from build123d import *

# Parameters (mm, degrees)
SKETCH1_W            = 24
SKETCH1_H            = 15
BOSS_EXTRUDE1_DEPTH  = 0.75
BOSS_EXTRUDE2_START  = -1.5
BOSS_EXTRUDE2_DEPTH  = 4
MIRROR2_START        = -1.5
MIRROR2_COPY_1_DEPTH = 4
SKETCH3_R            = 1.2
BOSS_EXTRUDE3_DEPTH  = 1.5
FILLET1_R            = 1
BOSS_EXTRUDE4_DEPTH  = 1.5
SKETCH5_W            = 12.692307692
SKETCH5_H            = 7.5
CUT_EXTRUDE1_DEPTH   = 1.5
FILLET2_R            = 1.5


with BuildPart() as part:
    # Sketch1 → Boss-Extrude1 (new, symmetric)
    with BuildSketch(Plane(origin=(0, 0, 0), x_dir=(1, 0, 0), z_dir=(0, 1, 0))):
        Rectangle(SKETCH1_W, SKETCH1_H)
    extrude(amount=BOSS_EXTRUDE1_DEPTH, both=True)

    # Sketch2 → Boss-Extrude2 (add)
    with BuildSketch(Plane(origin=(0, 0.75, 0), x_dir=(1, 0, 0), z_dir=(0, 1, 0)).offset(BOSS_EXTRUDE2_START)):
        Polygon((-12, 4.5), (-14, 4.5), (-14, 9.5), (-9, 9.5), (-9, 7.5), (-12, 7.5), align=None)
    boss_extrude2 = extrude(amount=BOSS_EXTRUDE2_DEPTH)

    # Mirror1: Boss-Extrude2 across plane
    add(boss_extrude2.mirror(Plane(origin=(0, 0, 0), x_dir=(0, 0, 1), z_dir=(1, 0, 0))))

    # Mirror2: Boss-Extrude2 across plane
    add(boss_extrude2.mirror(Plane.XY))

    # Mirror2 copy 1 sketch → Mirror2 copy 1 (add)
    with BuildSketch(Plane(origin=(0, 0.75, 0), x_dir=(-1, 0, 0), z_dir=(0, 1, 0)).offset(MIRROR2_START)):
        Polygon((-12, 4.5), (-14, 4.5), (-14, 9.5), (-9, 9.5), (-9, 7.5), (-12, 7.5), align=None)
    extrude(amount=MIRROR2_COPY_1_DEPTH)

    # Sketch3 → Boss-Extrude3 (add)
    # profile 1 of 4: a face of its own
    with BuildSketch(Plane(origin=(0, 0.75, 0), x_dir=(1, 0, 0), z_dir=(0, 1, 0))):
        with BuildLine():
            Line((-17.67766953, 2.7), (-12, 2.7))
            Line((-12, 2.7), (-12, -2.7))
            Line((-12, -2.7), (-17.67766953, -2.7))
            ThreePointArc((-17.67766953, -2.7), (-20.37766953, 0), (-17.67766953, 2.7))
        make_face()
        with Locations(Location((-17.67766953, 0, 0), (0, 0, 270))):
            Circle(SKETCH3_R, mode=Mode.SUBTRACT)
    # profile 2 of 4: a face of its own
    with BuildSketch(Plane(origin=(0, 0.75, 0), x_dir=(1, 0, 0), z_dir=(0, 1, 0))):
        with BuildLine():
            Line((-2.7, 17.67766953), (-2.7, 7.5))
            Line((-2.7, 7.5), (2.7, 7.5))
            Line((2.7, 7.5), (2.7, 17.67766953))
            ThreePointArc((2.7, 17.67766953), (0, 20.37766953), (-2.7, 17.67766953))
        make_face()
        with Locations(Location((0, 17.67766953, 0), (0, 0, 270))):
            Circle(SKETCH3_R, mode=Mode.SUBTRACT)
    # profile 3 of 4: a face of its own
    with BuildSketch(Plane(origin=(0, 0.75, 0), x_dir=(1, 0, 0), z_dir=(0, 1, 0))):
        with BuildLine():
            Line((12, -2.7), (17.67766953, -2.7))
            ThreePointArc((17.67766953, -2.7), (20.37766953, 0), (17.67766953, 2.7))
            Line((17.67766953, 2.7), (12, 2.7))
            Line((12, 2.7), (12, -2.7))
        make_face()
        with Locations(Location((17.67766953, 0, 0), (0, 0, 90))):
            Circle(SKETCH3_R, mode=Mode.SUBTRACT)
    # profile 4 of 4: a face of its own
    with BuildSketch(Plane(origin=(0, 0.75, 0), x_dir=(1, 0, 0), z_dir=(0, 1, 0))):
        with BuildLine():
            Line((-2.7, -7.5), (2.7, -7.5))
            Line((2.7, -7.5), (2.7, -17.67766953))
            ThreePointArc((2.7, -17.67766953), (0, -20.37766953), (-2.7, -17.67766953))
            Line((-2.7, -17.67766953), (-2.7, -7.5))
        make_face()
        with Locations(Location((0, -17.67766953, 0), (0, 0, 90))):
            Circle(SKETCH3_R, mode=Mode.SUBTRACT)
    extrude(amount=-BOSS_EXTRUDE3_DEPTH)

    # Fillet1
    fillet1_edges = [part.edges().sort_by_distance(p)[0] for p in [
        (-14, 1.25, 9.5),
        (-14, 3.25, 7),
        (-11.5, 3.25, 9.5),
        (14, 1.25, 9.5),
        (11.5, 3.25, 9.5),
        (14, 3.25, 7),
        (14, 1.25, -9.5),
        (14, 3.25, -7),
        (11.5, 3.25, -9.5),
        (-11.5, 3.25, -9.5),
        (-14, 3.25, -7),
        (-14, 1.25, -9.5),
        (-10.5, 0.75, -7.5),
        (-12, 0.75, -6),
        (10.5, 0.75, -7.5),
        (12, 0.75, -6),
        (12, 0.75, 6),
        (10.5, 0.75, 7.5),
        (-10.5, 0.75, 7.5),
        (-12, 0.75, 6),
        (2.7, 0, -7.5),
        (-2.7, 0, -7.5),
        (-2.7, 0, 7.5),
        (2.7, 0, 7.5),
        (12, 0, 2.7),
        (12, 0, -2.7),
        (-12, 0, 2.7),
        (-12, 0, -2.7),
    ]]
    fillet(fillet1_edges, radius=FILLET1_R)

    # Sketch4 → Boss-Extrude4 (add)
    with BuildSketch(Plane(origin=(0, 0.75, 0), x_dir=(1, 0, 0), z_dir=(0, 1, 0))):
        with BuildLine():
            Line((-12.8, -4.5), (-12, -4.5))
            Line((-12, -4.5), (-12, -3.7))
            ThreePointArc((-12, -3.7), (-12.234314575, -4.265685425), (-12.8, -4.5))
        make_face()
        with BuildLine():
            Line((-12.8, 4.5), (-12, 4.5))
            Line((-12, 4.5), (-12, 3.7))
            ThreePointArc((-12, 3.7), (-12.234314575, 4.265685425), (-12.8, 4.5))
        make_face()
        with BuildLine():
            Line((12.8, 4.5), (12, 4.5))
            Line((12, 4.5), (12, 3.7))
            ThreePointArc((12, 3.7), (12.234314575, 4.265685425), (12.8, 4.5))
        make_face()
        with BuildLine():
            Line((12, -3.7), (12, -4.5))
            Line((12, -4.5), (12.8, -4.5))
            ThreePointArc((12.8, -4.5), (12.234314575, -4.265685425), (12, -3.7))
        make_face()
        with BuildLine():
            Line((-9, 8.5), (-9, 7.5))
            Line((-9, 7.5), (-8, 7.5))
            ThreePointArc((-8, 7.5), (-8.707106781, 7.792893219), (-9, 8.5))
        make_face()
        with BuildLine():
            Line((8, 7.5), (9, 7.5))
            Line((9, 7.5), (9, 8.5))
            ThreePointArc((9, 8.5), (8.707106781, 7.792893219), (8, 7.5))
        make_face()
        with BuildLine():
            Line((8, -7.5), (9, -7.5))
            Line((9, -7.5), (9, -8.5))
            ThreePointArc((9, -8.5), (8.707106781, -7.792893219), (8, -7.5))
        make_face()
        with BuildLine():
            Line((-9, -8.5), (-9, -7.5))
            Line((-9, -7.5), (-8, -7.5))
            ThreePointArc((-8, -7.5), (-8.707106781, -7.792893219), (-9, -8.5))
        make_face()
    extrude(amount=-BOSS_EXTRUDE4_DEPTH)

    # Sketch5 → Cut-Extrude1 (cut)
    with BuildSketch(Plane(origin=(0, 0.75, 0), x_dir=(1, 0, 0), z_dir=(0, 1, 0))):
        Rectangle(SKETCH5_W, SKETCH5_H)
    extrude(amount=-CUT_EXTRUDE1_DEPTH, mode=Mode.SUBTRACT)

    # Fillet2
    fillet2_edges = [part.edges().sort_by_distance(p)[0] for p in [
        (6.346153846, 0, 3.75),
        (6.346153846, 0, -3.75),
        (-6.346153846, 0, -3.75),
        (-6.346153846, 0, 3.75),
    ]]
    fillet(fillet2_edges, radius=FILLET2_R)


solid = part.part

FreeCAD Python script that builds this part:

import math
import FreeCAD as App
import Part
import Sketcher
from FreeCAD import Vector
Q = App.Units.Quantity


def edges_at(feature, points):
    """Names of the edges that pass closest to the given points."""
    edges = feature.Shape.Edges
    near = lambda p: min(range(len(edges)), key=lambda i: edges[i].distToShape(Part.Vertex(*p))[0])
    return sorted({f"Edge{near(p) + 1}" for p in points})


def add_polygon(sketch, points):
    """Adds a closed chain of lines whose ends are joined by coincident constraints."""
    first, n = sketch.GeometryCount, len(points)
    for a, b in zip(points, points[1:] + points[:1]):
        sketch.addGeometry(Part.LineSegment(App.Vector(*a, 0), App.Vector(*b, 0)), False)
    for i in range(n):
        sketch.addConstraint(Sketcher.Constraint("Coincident", first + i, 2, first + (i + 1) % n, 1))

doc = App.newDocument("Part")
body = doc.addObject("PartDesign::Body", "Body")

sketch1 = body.newObject("Sketcher::SketchObject", "Sketch")
sketch1.AttachmentSupport = (doc.getObject("XZ_Plane"), [""])
sketch1.MapMode = "FlatFace"
add_polygon(sketch1, [(-12, -8), (-12, 8), (12, 8), (12, -8)])
sketch1.addConstraint(Sketcher.Constraint("Vertical", 0))
sketch1.addConstraint(Sketcher.Constraint("Horizontal", 1))
sketch1.addConstraint(Sketcher.Constraint("Vertical", 2))
sketch1.addConstraint(Sketcher.Constraint("Horizontal", 3))
sketch1.addConstraint(Sketcher.Constraint("Symmetric", 0, 2, 2, 2, -1, 1))
sketch1.addConstraint(Sketcher.Constraint("DistanceX", 1, 1, 1, 2, Q("24 mm")))
sketch1.addConstraint(Sketcher.Constraint("DistanceY", 0, 1, 0, 2, Q("15 mm")))
pad1 = body.newObject("PartDesign::Pad", "Pad")
pad1.Profile = sketch1
pad1.Length = 1.5
pad1.Midplane = True

sketch2 = body.newObject("Sketcher::SketchObject", "Sketch001")
sketch2.AttachmentSupport = (doc.getObject("XZ_Plane"), [""])
sketch2.MapMode = "FlatFace"
sketch2.AttachmentOffset = App.Placement(Vector(0, 0, 0.75), App.Rotation())
add_polygon(sketch2, [(-14, -4.5), (-12, -4.5), (-12, -7.5), (-9, -7.5), (-9, -9.5), (-14, -9.5)])
sketch2.addConstraint(Sketcher.Constraint("Horizontal", 0))
sketch2.addConstraint(Sketcher.Constraint("Vertical", 1))
sketch2.addConstraint(Sketcher.Constraint("Horizontal", 2))
sketch2.addConstraint(Sketcher.Constraint("Vertical", 3))
sketch2.addConstraint(Sketcher.Constraint("Horizontal", 4))
sketch2.addConstraint(Sketcher.Constraint("Vertical", 5))
sketch2.addConstraint(Sketcher.Constraint("Equal", 2, 1))
sketch2.addConstraint(Sketcher.Constraint("Equal", 0, 3))
sketch2.addConstraint(Sketcher.Constraint("DistanceX", 0, 1, 0, 2, Q("2 mm")))
sketch2.addConstraint(Sketcher.Constraint("DistanceX", 2, 1, 2, 2, Q("3 mm")))
sketch2.addConstraint(Sketcher.Constraint("DistanceX", 0, 2, -1, 1, Q("12 mm")))
sketch2.addConstraint(Sketcher.Constraint("DistanceY", 0, 2, -1, 1, Q("4.5 mm")))
pad2 = body.newObject("PartDesign::Pad", "Pad001")
pad2.Profile = sketch2
pad2.Length = 4
pad2.Reversed = True
doc.recompute()

mirrored = body.newObject("PartDesign::Mirrored", "Mirrored")
mirrored.Originals = [pad2]
mirrored.MirrorPlane = (doc.getObject("YZ_Plane"), [""])
body.Tip = mirrored
doc.recompute()

mirrored2 = body.newObject("PartDesign::Mirrored", "Mirrored001")
mirrored2.Originals = [pad2]
mirrored2.MirrorPlane = (doc.getObject("XY_Plane"), [""])
body.Tip = mirrored2

sketch3 = body.newObject("Sketcher::SketchObject", "Sketch002")
sketch3.AttachmentSupport = (doc.getObject("XZ_Plane"), [""])
sketch3.MapMode = "FlatFace"
sketch3.AttachmentOffset = App.Placement(Vector(0, 0, 0.75), App.Rotation())
add_polygon(sketch3, [(14, 4.5), (12, 4.5), (12, 7.5), (9, 7.5), (9, 9.5), (14, 9.5)])
sketch3.addConstraint(Sketcher.Constraint("Horizontal", 0))
sketch3.addConstraint(Sketcher.Constraint("Vertical", 1))
sketch3.addConstraint(Sketcher.Constraint("Horizontal", 2))
sketch3.addConstraint(Sketcher.Constraint("Vertical", 3))
sketch3.addConstraint(Sketcher.Constraint("Horizontal", 4))
sketch3.addConstraint(Sketcher.Constraint("Vertical", 5))
sketch3.addConstraint(Sketcher.Constraint("Equal", 2, 1))
sketch3.addConstraint(Sketcher.Constraint("Equal", 0, 3))
sketch3.addConstraint(Sketcher.Constraint("DistanceX", 0, 2, 0, 1, Q("2 mm")))
sketch3.addConstraint(Sketcher.Constraint("DistanceX", 2, 2, 2, 1, Q("3 mm")))
sketch3.addConstraint(Sketcher.Constraint("DistanceX", -1, 1, 0, 2, Q("12 mm")))
sketch3.addConstraint(Sketcher.Constraint("DistanceY", -1, 1, 0, 2, Q("4.5 mm")))
pad3 = body.newObject("PartDesign::Pad", "Pad002")
pad3.Profile = sketch3
pad3.Length = 4
pad3.Reversed = True

sketch4 = body.newObject("Sketcher::SketchObject", "Sketch003")
sketch4.AttachmentSupport = (doc.getObject("XZ_Plane"), [""])
sketch4.MapMode = "FlatFace"
sketch4.AttachmentOffset = App.Placement(Vector(0, 0, -0.75), App.Rotation())
sketch4.addGeometry(Part.LineSegment(Vector(-12, -2.7, 0), Vector(-17.7, -2.7, 0)), False)
sketch4.addGeometry(Part.ArcOfCircle(Part.Circle(Vector(-17.7, 0, 0), Vector(0, 0, 1), 2.7), math.radians(90), math.radians(270)), False)
sketch4.addGeometry(Part.LineSegment(Vector(-17.7, 2.7, 0), Vector(-12, 2.7, 0)), False)
sketch4.addGeometry(Part.LineSegment(Vector(-12, 2.7, 0), Vector(-12, -2.7, 0)), False)
sketch4.addGeometry(Part.Circle(Vector(-17.7, 0, 0), Vector(0, 0, 1), 1.2), False)
sketch4.addGeometry(Part.LineSegment(Vector(-2.7, -17.7, 0), Vector(-2.7, -7.5, 0)), False)
sketch4.addGeometry(Part.LineSegment(Vector(-2.7, -7.5, 0), Vector(2.7, -7.5, 0)), False)
sketch4.addGeometry(Part.LineSegment(Vector(2.7, -7.5, 0), Vector(2.7, -17.7, 0)), False)
sketch4.addGeometry(Part.ArcOfCircle(Part.Circle(Vector(0, -17.7, 0), Vector(0, 0, 1), 2.7), math.radians(180), math.radians(360)), False)
sketch4.addGeometry(Part.Circle(Vector(0, -17.7, 0), Vector(0, 0, 1), 1.2), False)
sketch4.addGeometry(Part.LineSegment(Vector(12, 2.7, 0), Vector(17.7, 2.7, 0)), False)
sketch4.addGeometry(Part.ArcOfCircle(Part.Circle(Vector(17.7, 0, 0), Vector(0, 0, 1), 2.7), math.radians(-90), math.radians(90)), False)
sketch4.addGeometry(Part.LineSegment(Vector(17.7, -2.7, 0), Vector(12, -2.7, 0)), False)
sketch4.addGeometry(Part.LineSegment(Vector(12, -2.7, 0), Vector(12, 2.7, 0)), False)
sketch4.addGeometry(Part.Circle(Vector(17.7, 0, 0), Vector(0, 0, 1), 1.2), False)
sketch4.addGeometry(Part.LineSegment(Vector(2.7, 7.5, 0), Vector(-2.7, 7.5, 0)), False)
sketch4.addGeometry(Part.LineSegment(Vector(-2.7, 7.5, 0), Vector(-2.7, 17.7, 0)), False)
sketch4.addGeometry(Part.ArcOfCircle(Part.Circle(Vector(0, 17.7, 0), Vector(0, 0, 1), 2.7), math.radians(0), math.radians(180)), False)
sketch4.addGeometry(Part.LineSegment(Vector(2.7, 17.7, 0), Vector(2.7, 7.5, 0)), False)
sketch4.addGeometry(Part.Circle(Vector(0, 17.7, 0), Vector(0, 0, 1), 1.2), False)
sketch4.addConstraint(Sketcher.Constraint("Tangent", 0, 2, 1, 2))
sketch4.addConstraint(Sketcher.Constraint("Tangent", 1, 1, 2, 1))
sketch4.addConstraint(Sketcher.Constraint("Coincident", 2, 2, 3, 1))
sketch4.addConstraint(Sketcher.Constraint("Coincident", 3, 2, 0, 1))
sketch4.addConstraint(Sketcher.Constraint("Coincident", 5, 2, 6, 1))
sketch4.addConstraint(Sketcher.Constraint("Coincident", 6, 2, 7, 1))
sketch4.addConstraint(Sketcher.Constraint("Tangent", 7, 2, 8, 2))
sketch4.addConstraint(Sketcher.Constraint("Tangent", 8, 1, 5, 1))
sketch4.addConstraint(Sketcher.Constraint("Tangent", 10, 2, 11, 2))
sketch4.addConstraint(Sketcher.Constraint("Tangent", 11, 1, 12, 1))
sketch4.addConstraint(Sketcher.Constraint("Coincident", 12, 2, 13, 1))
sketch4.addConstraint(Sketcher.Constraint("Coincident", 13, 2, 10, 1))
sketch4.addConstraint(Sketcher.Constraint("Coincident", 15, 2, 16, 1))
sketch4.addConstraint(Sketcher.Constraint("Tangent", 16, 2, 17, 2))
sketch4.addConstraint(Sketcher.Constraint("Tangent", 17, 1, 18, 1))
sketch4.addConstraint(Sketcher.Constraint("Coincident", 18, 2, 15, 1))
sketch4.addConstraint(Sketcher.Constraint("Horizontal", 0))
sketch4.addConstraint(Sketcher.Constraint("Horizontal", 2))
sketch4.addConstraint(Sketcher.Constraint("Vertical", 3))
sketch4.addConstraint(Sketcher.Constraint("Vertical", 5))
sketch4.addConstraint(Sketcher.Constraint("Horizontal", 6))
sketch4.addConstraint(Sketcher.Constraint("Vertical", 7))
sketch4.addConstraint(Sketcher.Constraint("Horizontal", 10))
sketch4.addConstraint(Sketcher.Constraint("Horizontal", 12))
sketch4.addConstraint(Sketcher.Constraint("Vertical", 13))
sketch4.addConstraint(Sketcher.Constraint("Horizontal", 15))
sketch4.addConstraint(Sketcher.Constraint("Vertical", 16))
sketch4.addConstraint(Sketcher.Constraint("Vertical", 18))
sketch4.addConstraint(Sketcher.Constraint("Coincident", 4, 3, 1, 3))
sketch4.addConstraint(Sketcher.Constraint("Coincident", 9, 3, 8, 3))
sketch4.addConstraint(Sketcher.Constraint("Coincident", 14, 3, 11, 3))
sketch4.addConstraint(Sketcher.Constraint("Coincident", 19, 3, 17, 3))
sketch4.addConstraint(Sketcher.Constraint("Equal", 1, 8))
sketch4.addConstraint(Sketcher.Constraint("Equal", 4, 9))
sketch4.addConstraint(Sketcher.Constraint("Equal", 8, 11))
sketch4.addConstraint(Sketcher.Constraint("Equal", 9, 14))
sketch4.addConstraint(Sketcher.Constraint("Equal", 11, 17))
sketch4.addConstraint(Sketcher.Constraint("Equal", 14, 19))
sketch4.addConstraint(Sketcher.Constraint("Symmetric", 1, 3, 11, 3, -1, 1))
sketch4.addConstraint(Sketcher.Constraint("Symmetric", 8, 3, 17, 3, -1, 1))
sketch4.addConstraint(Sketcher.Constraint("Symmetric", 3, 2, 12, 2, -2))
sketch4.addConstraint(Sketcher.Constraint("Symmetric", 5, 2, 15, 2, -1))
sketch4.addConstraint(Sketcher.Constraint("Diameter", 4, Q("2.4 mm")))
sketch4.addConstraint(Sketcher.Constraint("Radius", 1, Q("2.7 mm")))
sketch4.addConstraint(Sketcher.Constraint("DistanceX", 2, 2, -1, 1, Q("12 mm")))
sketch4.addConstraint(Sketcher.Constraint("DistanceY", 5, 2, 15, 2, Q("15 mm")))
sketch4.addConstraint(Sketcher.Constraint("DistanceX", 0, 2, 0, 1, Q("5.67767 mm")))
sketch4.addConstraint(Sketcher.Constraint("DistanceY", 5, 1, 5, 2, Q("10.17767 mm")))
pad4 = body.newObject("PartDesign::Pad", "Pad003")
pad4.Profile = sketch4
pad4.Length = 1.5
doc.recompute()

fillet = body.newObject("PartDesign::Fillet", "Fillet")
fillet.Base = (pad4, edges_at(pad4, [
    (-14, 1.25, 9.5),
    (-14, 3.25, 7),
    (-11.5, 3.25, 9.5),
    (14, 1.25, 9.5),
    (11.5, 3.25, 9.5),
    (14, 3.25, 7),
    (14, 1.25, -9.5),
    (14, 3.25, -7),
    (11.5, 3.25, -9.5),
    (-11.5, 3.25, -9.5),
    (-14, 3.25, -7),
    (-14, 1.25, -9.5),
    (-10.5, 0.75, -7.5),
    (-12, 0.75, -6),
    (10.5, 0.75, -7.5),
    (12, 0.75, -6),
    (12, 0.75, 6),
    (10.5, 0.75, 7.5),
    (-10.5, 0.75, 7.5),
    (-12, 0.75, 6),
    (2.7, 0, -7.5),
    (-2.7, 0, -7.5),
    (-2.7, 0, 7.5),
    (2.7, 0, 7.5),
    (12, 0, 2.7),
    (12, 0, -2.7),
    (-12, 0, 2.7),
    (-12, 0, -2.7),
]))
fillet.Radius = 1

sketch5 = body.newObject("Sketcher::SketchObject", "Sketch004")
sketch5.AttachmentSupport = (doc.getObject("XZ_Plane"), [""])
sketch5.MapMode = "FlatFace"
sketch5.AttachmentOffset = App.Placement(Vector(0, 0, -0.75), App.Rotation())
sketch5.addGeometry(Part.LineSegment(Vector(-12.8, 4.5, 0), Vector(-12, 4.5, 0)), False)
sketch5.addGeometry(Part.LineSegment(Vector(-12, 4.5, 0), Vector(-12, 3.7, 0)), False)
sketch5.addGeometry(Part.ArcOfCircle(Part.Circle(Vector(-12.8, 3.7, 0), Vector(0, 0, 1), 0.8), math.radians(0), math.radians(90)), False)
sketch5.addGeometry(Part.LineSegment(Vector(-12, -4.5, 0), Vector(-12.8, -4.5, 0)), False)
sketch5.addGeometry(Part.ArcOfCircle(Part.Circle(Vector(-12.8, -3.7, 0), Vector(0, 0, 1), 0.8), math.radians(-90), math.radians(0)), False)
sketch5.addGeometry(Part.LineSegment(Vector(-12, -3.7, 0), Vector(-12, -4.5, 0)), False)
sketch5.addGeometry(Part.LineSegment(Vector(12.8, -4.5, 0), Vector(12, -4.5, 0)), False)
sketch5.addGeometry(Part.LineSegment(Vector(12, -4.5, 0), Vector(12, -3.7, 0)), False)
sketch5.addGeometry(Part.ArcOfCircle(Part.Circle(Vector(12.8, -3.7, 0), Vector(0, 0, 1), 0.8), math.radians(180), math.radians(270)), False)
sketch5.addGeometry(Part.LineSegment(Vector(12, 3.7, 0), Vector(12, 4.5, 0)), False)
sketch5.addGeometry(Part.LineSegment(Vector(12, 4.5, 0), Vector(12.8, 4.5, 0)), False)
sketch5.addGeometry(Part.ArcOfCircle(Part.Circle(Vector(12.8, 3.7, 0), Vector(0, 0, 1), 0.8), math.radians(90), math.radians(180)), False)
sketch5.addGeometry(Part.LineSegment(Vector(-9, -8.5, 0), Vector(-9, -7.5, 0)), False)
sketch5.addGeometry(Part.LineSegment(Vector(-9, -7.5, 0), Vector(-8, -7.5, 0)), False)
sketch5.addGeometry(Part.ArcOfCircle(Part.Circle(Vector(-8, -8.5, 0), Vector(0, 0, 1), 1), math.radians(90), math.radians(180)), False)
sketch5.addGeometry(Part.LineSegment(Vector(8, -7.5, 0), Vector(9, -7.5, 0)), False)
sketch5.addGeometry(Part.LineSegment(Vector(9, -7.5, 0), Vector(9, -8.5, 0)), False)
sketch5.addGeometry(Part.ArcOfCircle(Part.Circle(Vector(8, -8.5, 0), Vector(0, 0, 1), 1), math.radians(0), math.radians(90)), False)
sketch5.addGeometry(Part.LineSegment(Vector(9, 7.5, 0), Vector(8, 7.5, 0)), False)
sketch5.addGeometry(Part.ArcOfCircle(Part.Circle(Vector(8, 8.5, 0), Vector(0, 0, 1), 1), math.radians(-90), math.radians(0)), False)
sketch5.addGeometry(Part.LineSegment(Vector(9, 8.5, 0), Vector(9, 7.5, 0)), False)
sketch5.addGeometry(Part.LineSegment(Vector(-9, 7.5, 0), Vector(-9, 8.5, 0)), False)
sketch5.addGeometry(Part.ArcOfCircle(Part.Circle(Vector(-8, 8.5, 0), Vector(0, 0, 1), 1), math.radians(-180), math.radians(-90)), False)
sketch5.addGeometry(Part.LineSegment(Vector(-8, 7.5, 0), Vector(-9, 7.5, 0)), False)
sketch5.addConstraint(Sketcher.Constraint("Coincident", 0, 2, 1, 1))
sketch5.addConstraint(Sketcher.Constraint("Tangent", 1, 2, 2, 1))
sketch5.addConstraint(Sketcher.Constraint("Tangent", 2, 2, 0, 1))
sketch5.addConstraint(Sketcher.Constraint("Tangent", 3, 2, 4, 1))
sketch5.addConstraint(Sketcher.Constraint("Tangent", 4, 2, 5, 1))
sketch5.addConstraint(Sketcher.Constraint("Coincident", 5, 2, 3, 1))
sketch5.addConstraint(Sketcher.Constraint("Coincident", 6, 2, 7, 1))
sketch5.addConstraint(Sketcher.Constraint("Tangent", 7, 2, 8, 1))
sketch5.addConstraint(Sketcher.Constraint("Tangent", 8, 2, 6, 1))
sketch5.addConstraint(Sketcher.Constraint("Coincident", 9, 2, 10, 1))
sketch5.addConstraint(Sketcher.Constraint("Tangent", 10, 2, 11, 1))
sketch5.addConstraint(Sketcher.Constraint("Tangent", 11, 2, 9, 1))
sketch5.addConstraint(Sketcher.Constraint("Coincident", 12, 2, 13, 1))
sketch5.addConstraint(Sketcher.Constraint("Tangent", 13, 2, 14, 1))
sketch5.addConstraint(Sketcher.Constraint("Tangent", 14, 2, 12, 1))
sketch5.addConstraint(Sketcher.Constraint("Coincident", 15, 2, 16, 1))
sketch5.addConstraint(Sketcher.Constraint("Tangent", 16, 2, 17, 1))
sketch5.addConstraint(Sketcher.Constraint("Tangent", 17, 2, 15, 1))
sketch5.addConstraint(Sketcher.Constraint("Tangent", 18, 2, 19, 1))
sketch5.addConstraint(Sketcher.Constraint("Tangent", 19, 2, 20, 1))
sketch5.addConstraint(Sketcher.Constraint("Coincident", 20, 2, 18, 1))
sketch5.addConstraint(Sketcher.Constraint("Tangent", 21, 2, 22, 1))
sketch5.addConstraint(Sketcher.Constraint("Tangent", 22, 2, 23, 1))
sketch5.addConstraint(Sketcher.Constraint("Coincident", 23, 2, 21, 1))
sketch5.addConstraint(Sketcher.Constraint("Horizontal", 0))
sketch5.addConstraint(Sketcher.Constraint("Vertical", 1))
sketch5.addConstraint(Sketcher.Constraint("Horizontal", 3))
sketch5.addConstraint(Sketcher.Constraint("Vertical", 5))
sketch5.addConstraint(Sketcher.Constraint("Horizontal", 6))
sketch5.addConstraint(Sketcher.Constraint("Vertical", 7))
sketch5.addConstraint(Sketcher.Constraint("Vertical", 9))
sketch5.addConstraint(Sketcher.Constraint("Horizontal", 10))
sketch5.addConstraint(Sketcher.Constraint("Vertical", 12))
sketch5.addConstraint(Sketcher.Constraint("Horizontal", 13))
sketch5.addConstraint(Sketcher.Constraint("Horizontal", 15))
sketch5.addConstraint(Sketcher.Constraint("Vertical", 16))
sketch5.addConstraint(Sketcher.Constraint("Horizontal", 18))
sketch5.addConstraint(Sketcher.Constraint("Vertical", 20))
sketch5.addConstraint(Sketcher.Constraint("Vertical", 21))
sketch5.addConstraint(Sketcher.Constraint("Horizontal", 23))
sketch5.addConstraint(Sketcher.Constraint("Equal", 2, 4))
sketch5.addConstraint(Sketcher.Constraint("Equal", 4, 8))
sketch5.addConstraint(Sketcher.Constraint("Equal", 8, 11))
sketch5.addConstraint(Sketcher.Constraint("Equal", 14, 17))
sketch5.addConstraint(Sketcher.Constraint("Equal", 17, 19))
sketch5.addConstraint(Sketcher.Constraint("Equal", 19, 22))
sketch5.addConstraint(Sketcher.Constraint("Symmetric", 2, 3, 8, 3, -1, 1))
sketch5.addConstraint(Sketcher.Constraint("Symmetric", 4, 3, 11, 3, -1, 1))
sketch5.addConstraint(Sketcher.Constraint("Symmetric", 14, 3, 19, 3, -1, 1))
sketch5.addConstraint(Sketcher.Constraint("Symmetric", 17, 3, 22, 3, -1, 1))
sketch5.addConstraint(Sketcher.Constraint("Symmetric", 4, 3, 8, 3, -2))
sketch5.addConstraint(Sketcher.Constraint("Symmetric", 14, 3, 17, 3, -2))
sketch5.addConstraint(Sketcher.Constraint("Radius", 14, Q("1 mm")))
sketch5.addConstraint(Sketcher.Constraint("Radius", 2, Q("0.8 mm")))
sketch5.addConstraint(Sketcher.Constraint("DistanceX", 14, 3, -1, 1, Q("8 mm")))
sketch5.addConstraint(Sketcher.Constraint("DistanceX", 0, 2, -1, 1, Q("12 mm")))
sketch5.addConstraint(Sketcher.Constraint("DistanceY", 17, 3, 19, 3, Q("17 mm")))
sketch5.addConstraint(Sketcher.Constraint("DistanceY", 0, 2, 22, 3, Q("4 mm")))
pad5 = body.newObject("PartDesign::Pad", "Pad004")
pad5.Profile = sketch5
pad5.Length = 1.5

sketch6 = body.newObject("Sketcher::SketchObject", "Sketch005")
sketch6.AttachmentSupport = (doc.getObject("XZ_Plane"), [""])
sketch6.MapMode = "FlatFace"
sketch6.AttachmentOffset = App.Placement(Vector(0, 0, -0.75), App.Rotation())
add_polygon(sketch6, [(-6, -4), (-6, 4), (6, 4), (6, -4)])
sketch6.addConstraint(Sketcher.Constraint("Vertical", 0))
sketch6.addConstraint(Sketcher.Constraint("Horizontal", 1))
sketch6.addConstraint(Sketcher.Constraint("Vertical", 2))
sketch6.addConstraint(Sketcher.Constraint("Horizontal", 3))
sketch6.addConstraint(Sketcher.Constraint("Symmetric", 0, 2, 2, 2, -1, 1))
sketch6.addConstraint(Sketcher.Constraint("DistanceY", 0, 1, 0, 2, Q("7.5 mm")))
sketch6.addConstraint(Sketcher.Constraint("DistanceX", 1, 1, 1, 2, Q("12.692308 mm")))
pocket1 = body.newObject("PartDesign::Pocket", "Pocket")
pocket1.Profile = sketch6
pocket1.Length = 1.5
pocket1.Reversed = True
doc.recompute()

fillet2 = body.newObject("PartDesign::Fillet", "Fillet001")
fillet2.Base = (pocket1, edges_at(pocket1, [
    (6.346, 0, 3.75),
    (6.346, 0, -3.75),
    (-6.346, 0, -3.75),
    (-6.346, 0, 3.75),
]))
fillet2.Radius = 1.5

doc.recompute()
